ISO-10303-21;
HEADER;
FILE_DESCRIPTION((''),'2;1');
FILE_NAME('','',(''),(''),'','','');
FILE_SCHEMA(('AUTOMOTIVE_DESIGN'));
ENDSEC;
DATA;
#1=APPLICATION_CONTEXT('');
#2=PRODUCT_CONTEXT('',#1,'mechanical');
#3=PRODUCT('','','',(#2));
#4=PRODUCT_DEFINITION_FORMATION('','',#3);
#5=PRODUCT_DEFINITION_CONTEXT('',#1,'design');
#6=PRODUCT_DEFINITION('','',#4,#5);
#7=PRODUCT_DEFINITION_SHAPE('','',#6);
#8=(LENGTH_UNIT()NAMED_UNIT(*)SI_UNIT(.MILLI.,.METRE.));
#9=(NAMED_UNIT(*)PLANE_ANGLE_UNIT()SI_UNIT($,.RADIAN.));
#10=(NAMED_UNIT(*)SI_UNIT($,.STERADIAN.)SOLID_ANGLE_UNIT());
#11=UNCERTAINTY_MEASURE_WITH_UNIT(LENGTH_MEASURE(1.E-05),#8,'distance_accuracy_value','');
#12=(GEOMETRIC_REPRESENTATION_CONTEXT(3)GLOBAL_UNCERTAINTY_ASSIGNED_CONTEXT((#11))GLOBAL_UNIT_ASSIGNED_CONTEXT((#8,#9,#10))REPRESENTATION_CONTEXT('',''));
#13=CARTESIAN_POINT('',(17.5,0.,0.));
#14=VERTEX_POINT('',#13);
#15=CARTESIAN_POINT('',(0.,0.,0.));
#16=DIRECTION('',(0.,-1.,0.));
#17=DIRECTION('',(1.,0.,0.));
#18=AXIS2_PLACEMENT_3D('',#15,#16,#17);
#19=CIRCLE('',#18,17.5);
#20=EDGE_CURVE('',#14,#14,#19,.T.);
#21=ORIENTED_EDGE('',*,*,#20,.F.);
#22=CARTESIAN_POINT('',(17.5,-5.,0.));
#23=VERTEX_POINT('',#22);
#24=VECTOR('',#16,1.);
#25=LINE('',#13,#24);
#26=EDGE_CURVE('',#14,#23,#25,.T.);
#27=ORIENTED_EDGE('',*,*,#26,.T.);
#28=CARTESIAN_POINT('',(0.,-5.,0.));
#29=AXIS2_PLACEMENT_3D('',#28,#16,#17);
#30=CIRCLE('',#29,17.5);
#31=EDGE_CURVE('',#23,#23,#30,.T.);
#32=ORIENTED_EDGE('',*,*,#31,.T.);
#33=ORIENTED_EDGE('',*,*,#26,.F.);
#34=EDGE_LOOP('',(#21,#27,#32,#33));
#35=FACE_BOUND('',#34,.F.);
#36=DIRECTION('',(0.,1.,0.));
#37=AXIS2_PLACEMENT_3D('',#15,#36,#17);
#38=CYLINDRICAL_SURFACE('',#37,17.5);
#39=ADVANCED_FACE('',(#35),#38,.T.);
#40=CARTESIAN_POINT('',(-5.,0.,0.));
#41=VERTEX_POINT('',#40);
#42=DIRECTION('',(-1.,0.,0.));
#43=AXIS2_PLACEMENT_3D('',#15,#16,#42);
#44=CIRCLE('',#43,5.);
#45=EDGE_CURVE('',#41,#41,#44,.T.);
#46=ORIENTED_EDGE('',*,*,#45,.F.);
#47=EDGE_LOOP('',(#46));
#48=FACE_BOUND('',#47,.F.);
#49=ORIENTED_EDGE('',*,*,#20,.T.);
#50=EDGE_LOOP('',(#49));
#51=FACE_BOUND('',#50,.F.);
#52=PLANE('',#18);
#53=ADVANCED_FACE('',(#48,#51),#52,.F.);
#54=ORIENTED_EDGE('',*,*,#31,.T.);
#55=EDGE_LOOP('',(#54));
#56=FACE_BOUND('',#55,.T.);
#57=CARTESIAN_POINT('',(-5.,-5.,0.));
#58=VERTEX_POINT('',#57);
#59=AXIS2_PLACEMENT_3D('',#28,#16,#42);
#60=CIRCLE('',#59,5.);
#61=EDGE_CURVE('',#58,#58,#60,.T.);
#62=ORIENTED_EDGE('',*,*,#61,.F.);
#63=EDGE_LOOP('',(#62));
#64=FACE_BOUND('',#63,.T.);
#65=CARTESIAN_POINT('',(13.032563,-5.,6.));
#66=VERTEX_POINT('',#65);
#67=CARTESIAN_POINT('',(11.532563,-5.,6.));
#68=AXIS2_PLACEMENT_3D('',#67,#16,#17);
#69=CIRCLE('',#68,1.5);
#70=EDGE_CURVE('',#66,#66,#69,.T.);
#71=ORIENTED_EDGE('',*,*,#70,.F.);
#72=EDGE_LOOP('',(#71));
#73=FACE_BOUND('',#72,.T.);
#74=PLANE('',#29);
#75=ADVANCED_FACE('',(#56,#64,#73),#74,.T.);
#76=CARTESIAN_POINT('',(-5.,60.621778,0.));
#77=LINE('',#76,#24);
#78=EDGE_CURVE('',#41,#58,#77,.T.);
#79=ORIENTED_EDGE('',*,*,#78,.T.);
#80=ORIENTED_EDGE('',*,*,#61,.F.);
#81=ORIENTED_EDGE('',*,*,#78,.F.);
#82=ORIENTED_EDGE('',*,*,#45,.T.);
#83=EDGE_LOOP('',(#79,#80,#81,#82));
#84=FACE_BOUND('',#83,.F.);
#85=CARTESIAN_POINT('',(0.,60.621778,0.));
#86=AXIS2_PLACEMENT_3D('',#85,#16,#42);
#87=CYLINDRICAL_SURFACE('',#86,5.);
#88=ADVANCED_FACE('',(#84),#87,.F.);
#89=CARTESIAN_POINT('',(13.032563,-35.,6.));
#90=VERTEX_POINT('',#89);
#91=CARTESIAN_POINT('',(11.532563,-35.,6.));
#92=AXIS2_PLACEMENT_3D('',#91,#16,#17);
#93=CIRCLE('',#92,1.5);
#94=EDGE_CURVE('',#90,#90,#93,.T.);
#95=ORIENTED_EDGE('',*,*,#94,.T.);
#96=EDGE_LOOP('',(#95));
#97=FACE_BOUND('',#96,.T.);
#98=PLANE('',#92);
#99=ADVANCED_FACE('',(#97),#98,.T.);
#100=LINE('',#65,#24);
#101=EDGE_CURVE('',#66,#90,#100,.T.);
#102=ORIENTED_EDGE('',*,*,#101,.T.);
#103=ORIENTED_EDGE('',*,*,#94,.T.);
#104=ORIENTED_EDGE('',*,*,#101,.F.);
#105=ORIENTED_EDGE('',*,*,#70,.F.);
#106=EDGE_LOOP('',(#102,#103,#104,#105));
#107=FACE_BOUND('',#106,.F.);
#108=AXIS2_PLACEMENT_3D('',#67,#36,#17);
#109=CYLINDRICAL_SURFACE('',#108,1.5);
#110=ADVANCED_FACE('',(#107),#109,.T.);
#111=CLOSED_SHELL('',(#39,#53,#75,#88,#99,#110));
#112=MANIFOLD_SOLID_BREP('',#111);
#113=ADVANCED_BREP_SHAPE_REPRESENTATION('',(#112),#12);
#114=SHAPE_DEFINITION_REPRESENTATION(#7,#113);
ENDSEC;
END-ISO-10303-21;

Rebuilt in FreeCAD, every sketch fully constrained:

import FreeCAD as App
import Part
import Sketcher

doc = App.newDocument("Part")
body = doc.addObject("PartDesign::Body", "Body")

sketch1 = body.newObject("Sketcher::SketchObject", "Sketch")
sketch1.AttachmentSupport = (doc.getObject("XZ_Plane"), [""])
sketch1.MapMode = "FlatFace"
sketch1.addGeometry(Part.Circle(App.Vector(0, 0, 0), App.Vector(0, 0, 1), 18), False)
sketch1.addConstraint(Sketcher.Constraint("Coincident", 0, 3, -1, 1))
sketch1.addConstraint(Sketcher.Constraint("Diameter", 0, 35.0))
pad1 = body.newObject("PartDesign::Pad", "Pad")
pad1.Profile = sketch1
pad1.Length = 5

sketch2 = body.newObject("Sketcher::SketchObject", "Sketch001")
sketch2.AttachmentSupport = (doc.getObject("XZ_Plane"), [""])
sketch2.MapMode = "FlatFace"
sketch2.AttachmentOffset = App.Placement(App.Vector(0, 0, 5), App.Rotation())
sketch2.addGeometry(Part.Circle(App.Vector(11.5, 6, 0), App.Vector(0, 0, 1), 1.5), False)
sketch2.addConstraint(Sketcher.Constraint("Diameter", 0, 3.0))
sketch2.addConstraint(Sketcher.Constraint("DistanceY", -1, 1, 0, 3, 6.0))
sketch2.addConstraint(Sketcher.Constraint("DistanceX", -1, 1, 0, 3, 11.532563))
pad2 = body.newObject("PartDesign::Pad", "Pad001")
pad2.Profile = sketch2
pad2.Length = 30

sketch3 = body.newObject("Sketcher::SketchObject", "Sketch002")
sketch3.AttachmentSupport = (doc.getObject("XZ_Plane"), [""])
sketch3.MapMode = "FlatFace"
sketch3.addGeometry(Part.Circle(App.Vector(0, 0, 0), App.Vector(0, 0, 1), 5), False)
sketch3.addConstraint(Sketcher.Constraint("Coincident", 0, 3, -1, 1))
sketch3.addConstraint(Sketcher.Constraint("Diameter", 0, 10.0))
doc.recompute()
hole = body.newObject("PartDesign::Hole", "Hole")
hole.Profile = sketch3
hole.ThreadType = "None"
hole.Diameter = 10
hole.DepthType = "ThroughAll"
hole.Reversed = True

doc.recompute()
